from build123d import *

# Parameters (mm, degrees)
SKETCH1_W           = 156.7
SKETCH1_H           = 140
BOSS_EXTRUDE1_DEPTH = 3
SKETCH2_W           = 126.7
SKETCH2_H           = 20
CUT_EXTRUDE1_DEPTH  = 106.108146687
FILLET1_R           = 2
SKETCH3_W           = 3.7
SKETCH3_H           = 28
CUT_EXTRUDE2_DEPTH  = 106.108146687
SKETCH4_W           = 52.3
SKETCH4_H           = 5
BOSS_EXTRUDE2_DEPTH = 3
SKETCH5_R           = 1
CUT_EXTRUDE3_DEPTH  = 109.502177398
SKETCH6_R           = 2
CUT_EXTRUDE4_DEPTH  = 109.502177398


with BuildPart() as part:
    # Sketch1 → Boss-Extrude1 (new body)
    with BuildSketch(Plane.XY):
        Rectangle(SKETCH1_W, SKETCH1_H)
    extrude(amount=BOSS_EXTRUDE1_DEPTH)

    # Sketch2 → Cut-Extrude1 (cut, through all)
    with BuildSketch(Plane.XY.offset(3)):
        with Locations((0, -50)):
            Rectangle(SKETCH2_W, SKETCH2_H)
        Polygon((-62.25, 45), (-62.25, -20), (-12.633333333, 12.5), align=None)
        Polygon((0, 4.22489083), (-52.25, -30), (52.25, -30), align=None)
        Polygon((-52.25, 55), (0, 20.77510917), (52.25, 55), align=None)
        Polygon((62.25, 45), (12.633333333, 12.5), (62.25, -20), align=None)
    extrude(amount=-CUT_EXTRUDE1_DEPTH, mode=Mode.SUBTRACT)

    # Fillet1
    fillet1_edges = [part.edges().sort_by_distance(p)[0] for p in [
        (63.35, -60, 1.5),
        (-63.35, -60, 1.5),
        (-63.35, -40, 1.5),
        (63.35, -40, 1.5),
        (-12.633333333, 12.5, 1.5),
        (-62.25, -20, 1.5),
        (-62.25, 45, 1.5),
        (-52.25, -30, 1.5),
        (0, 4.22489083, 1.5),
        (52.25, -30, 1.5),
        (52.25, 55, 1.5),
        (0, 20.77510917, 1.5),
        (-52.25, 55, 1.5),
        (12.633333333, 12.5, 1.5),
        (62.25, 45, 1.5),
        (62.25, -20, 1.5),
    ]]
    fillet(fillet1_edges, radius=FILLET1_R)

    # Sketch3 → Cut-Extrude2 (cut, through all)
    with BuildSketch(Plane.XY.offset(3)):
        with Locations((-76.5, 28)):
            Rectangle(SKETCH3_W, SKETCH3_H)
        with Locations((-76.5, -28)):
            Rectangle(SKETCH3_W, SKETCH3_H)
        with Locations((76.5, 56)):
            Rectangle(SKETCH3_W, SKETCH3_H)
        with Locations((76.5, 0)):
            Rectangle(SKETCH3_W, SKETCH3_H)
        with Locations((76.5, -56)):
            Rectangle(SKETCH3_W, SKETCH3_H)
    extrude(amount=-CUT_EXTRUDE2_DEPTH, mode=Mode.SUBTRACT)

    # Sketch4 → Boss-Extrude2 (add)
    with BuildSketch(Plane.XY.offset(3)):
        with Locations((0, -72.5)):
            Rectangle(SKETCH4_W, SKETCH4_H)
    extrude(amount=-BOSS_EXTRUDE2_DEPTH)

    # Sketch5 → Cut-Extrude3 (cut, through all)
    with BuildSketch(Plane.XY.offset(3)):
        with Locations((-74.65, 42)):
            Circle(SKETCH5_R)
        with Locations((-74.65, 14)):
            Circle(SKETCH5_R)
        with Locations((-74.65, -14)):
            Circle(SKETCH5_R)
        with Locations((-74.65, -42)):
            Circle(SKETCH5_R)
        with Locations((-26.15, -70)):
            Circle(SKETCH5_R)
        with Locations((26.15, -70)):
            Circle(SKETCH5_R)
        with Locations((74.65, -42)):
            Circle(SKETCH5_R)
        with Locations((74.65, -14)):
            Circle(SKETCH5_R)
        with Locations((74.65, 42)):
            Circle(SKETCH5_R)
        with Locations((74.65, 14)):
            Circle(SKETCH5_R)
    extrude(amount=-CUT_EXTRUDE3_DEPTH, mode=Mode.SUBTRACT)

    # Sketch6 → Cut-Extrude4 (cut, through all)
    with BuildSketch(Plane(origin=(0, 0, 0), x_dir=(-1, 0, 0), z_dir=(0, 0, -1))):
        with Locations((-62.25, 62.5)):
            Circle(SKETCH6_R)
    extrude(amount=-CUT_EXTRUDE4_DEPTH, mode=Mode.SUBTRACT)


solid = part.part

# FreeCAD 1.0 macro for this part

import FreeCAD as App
import Part
import Sketcher
from FreeCAD import Vector


def edges_at(feature, points):
    """Names of the edges that pass closest to the given points."""
    edges = feature.Shape.Edges
    near = lambda p: min(range(len(edges)), key=lambda i: edges[i].distToShape(Part.Vertex(*p))[0])
    return sorted({f"Edge{near(p) + 1}" for p in points})

doc = App.newDocument("Part")
body = doc.addObject("PartDesign::Body", "Body")

sketch1 = body.newObject("Sketcher::SketchObject", "Sketch")
sketch1.AttachmentSupport = (doc.getObject("XY_Plane"), [""])
sketch1.MapMode = "FlatFace"
sketch1.addGeometry([
    Part.LineSegment(Vector(-78.35, 70, 0), Vector(-78.35, -70, 0)),
    Part.LineSegment(Vector(-78.35, -70, 0), Vector(78.35, -70, 0)),
    Part.LineSegment(Vector(78.35, -70, 0), Vector(78.35, 70, 0)),
    Part.LineSegment(Vector(78.35, 70, 0), Vector(-78.35, 70, 0)),
], False)
sketch1.addConstraint([
    Sketcher.Constraint("Coincident", 0, 2, 1, 1),
    Sketcher.Constraint("Coincident", 1, 2, 2, 1),
    Sketcher.Constraint("Coincident", 2, 2, 3, 1),
    Sketcher.Constraint("Coincident", 3, 2, 0, 1),
    Sketcher.Constraint("Vertical", 0),
    Sketcher.Constraint("Horizontal", 1),
    Sketcher.Constraint("Vertical", 2),
    Sketcher.Constraint("Horizontal", 3),
    Sketcher.Constraint("Symmetric", 0, 2, 2, 2, -1, 1),
    Sketcher.Constraint("DistanceY", 0, 2, 0, 1, 140.0),
    Sketcher.Constraint("DistanceX", 1, 1, 1, 2, 156.7),
])
pad1 = body.newObject("PartDesign::Pad", "Pad")
pad1.Profile = sketch1
pad1.Length = 3

sketch2 = body.newObject("Sketcher::SketchObject", "Sketch001")
sketch2.AttachmentSupport = (doc.getObject("XY_Plane"), [""])
sketch2.MapMode = "FlatFace"
sketch2.AttachmentOffset = App.Placement(Vector(0, 0, 3), App.Rotation())
sketch2.addGeometry([
    Part.LineSegment(Vector(-63.35, -40, 0), Vector(-63.35, -60, 0)),
    Part.LineSegment(Vector(-63.35, -60, 0), Vector(63.35, -60, 0)),
    Part.LineSegment(Vector(63.35, -60, 0), Vector(63.35, -40, 0)),
    Part.LineSegment(Vector(63.35, -40, 0), Vector(-63.35, -40, 0)),
    Part.LineSegment(Vector(-62.25, 45, 0), Vector(-62.25, -20, 0)),
    Part.LineSegment(Vector(-62.25, -20, 0), Vector(-12.633333, 12.5, 0)),
    Part.LineSegment(Vector(-12.633333, 12.5, 0), Vector(-62.25, 45, 0)),
    Part.LineSegment(Vector(0, 4.224891, 0), Vector(-52.25, -30, 0)),
    Part.LineSegment(Vector(-52.25, -30, 0), Vector(52.25, -30, 0)),
    Part.LineSegment(Vector(52.25, -30, 0), Vector(0, 4.224891, 0)),
    Part.LineSegment(Vector(-52.25, 55, 0), Vector(0, 20.775109, 0)),
    Part.LineSegment(Vector(0, 20.775109, 0), Vector(52.25, 55, 0)),
    Part.LineSegment(Vector(52.25, 55, 0), Vector(-52.25, 55, 0)),
    Part.LineSegment(Vector(62.25, 45, 0), Vector(12.633333, 12.5, 0)),
    Part.LineSegment(Vector(12.633333, 12.5, 0), Vector(62.25, -20, 0)),
    Part.LineSegment(Vector(62.25, -20, 0), Vector(62.25, 45, 0)),
], False)
sketch2.addConstraint([
    Sketcher.Constraint("Coincident", 0, 2, 1, 1),
    Sketcher.Constraint("Coincident", 1, 2, 2, 1),
    Sketcher.Constraint("Coincident", 2, 2, 3, 1),
    Sketcher.Constraint("Coincident", 3, 2, 0, 1),
    Sketcher.Constraint("Coincident", 4, 2, 5, 1),
    Sketcher.Constraint("Coincident", 5, 2, 6, 1),
    Sketcher.Constraint("Coincident", 6, 2, 4, 1),
    Sketcher.Constraint("Coincident", 7, 2, 8, 1),
    Sketcher.Constraint("Coincident", 8, 2, 9, 1),
    Sketcher.Constraint("Coincident", 9, 2, 7, 1),
    Sketcher.Constraint("Coincident", 10, 2, 11, 1),
    Sketcher.Constraint("Coincident", 11, 2, 12, 1),
    Sketcher.Constraint("Coincident", 12, 2, 10, 1),
    Sketcher.Constraint("Coincident", 13, 2, 14, 1),
    Sketcher.Constraint("Coincident", 14, 2, 15, 1),
    Sketcher.Constraint("Coincident", 15, 2, 13, 1),
    Sketcher.Constraint("Vertical", 0),
    Sketcher.Constraint("Horizontal", 1),
    Sketcher.Constraint("Vertical", 2),
    Sketcher.Constraint("Horizontal", 3),
    Sketcher.Constraint("Vertical", 4),
    Sketcher.Constraint("Horizontal", 8),
    Sketcher.Constraint("Horizontal", 12),
    Sketcher.Constraint("Vertical", 15),
    Sketcher.Constraint("Symmetric", 5, 2, 13, 2, -2),
    Sketcher.Constraint("Symmetric", 4, 2, 14, 2, -2),
    Sketcher.Constraint("PointOnObject", 9, 2, -2),
    Sketcher.Constraint("PointOnObject", 10, 2, -2),
    Sketcher.Constraint("Parallel", 5, 7),
    Sketcher.Constraint("Parallel", 6, 9),
    Sketcher.Constraint("Parallel", 9, 10),
    Sketcher.Constraint("Parallel", 7, 11),
    Sketcher.Constraint("Parallel", 11, 13),
    Sketcher.Constraint("Parallel", 10, 14),
    Sketcher.Constraint("Vertical", 8, 2, 11, 2),
    Sketcher.Constraint("DistanceY", 0, 2, 0, 1, 20.0),
    Sketcher.Constraint("DistanceY", 4, 2, 4, 1, 65.0),
    Sketcher.Constraint("DistanceX", 1, 1, 1, 2, 126.7),
    Sketcher.Constraint("DistanceX", 8, 1, 8, 2, 104.5),
    Sketcher.Constraint("DistanceY", 0, 2, -1, 1, 60.0),
    Sketcher.Constraint("DistanceY", 4, 2, -1, 1, 20.0),
    Sketcher.Constraint("DistanceY", 7, 2, -1, 1, 30.0),
    Sketcher.Constraint("DistanceY", -1, 1, 11, 2, 55.0),
    Sketcher.Constraint("DistanceX", 4, 2, 7, 2, 10.0),
    Sketcher.Constraint("DistanceX", 3, 2, 4, 2, 1.1),
    Sketcher.Constraint("DistanceY", -1, 1, 9, 2, 4.224891),
])
pocket1 = body.newObject("PartDesign::Pocket", "Pocket")
pocket1.Profile = sketch2
pocket1.Type = "ThroughAll"
doc.recompute()

fillet = body.newObject("PartDesign::Fillet", "Fillet")
fillet.Base = (pocket1, edges_at(pocket1, [
    (63.35, -60, 1.5),
    (-63.35, -60, 1.5),
    (-63.35, -40, 1.5),
    (63.35, -40, 1.5),
    (-12.633, 12.5, 1.5),
    (-62.25, -20, 1.5),
    (-62.25, 45, 1.5),
    (-52.25, -30, 1.5),
    (0, 4.225, 1.5),
    (52.25, -30, 1.5),
    (52.25, 55, 1.5),
    (0, 20.775, 1.5),
    (-52.25, 55, 1.5),
    (12.633, 12.5, 1.5),
    (62.25, 45, 1.5),
    (62.25, -20, 1.5),
]))
fillet.Radius = 2

sketch3 = body.newObject("Sketcher::SketchObject", "Sketch002")
sketch3.AttachmentSupport = (doc.getObject("XY_Plane"), [""])
sketch3.MapMode = "FlatFace"
sketch3.AttachmentOffset = App.Placement(Vector(0, 0, 3), App.Rotation())
sketch3.addGeometry([
    Part.LineSegment(Vector(-78.35, 42, 0), Vector(-78.35, 14, 0)),
    Part.LineSegment(Vector(-78.35, 14, 0), Vector(-74.65, 14, 0)),
    Part.LineSegment(Vector(-74.65, 14, 0), Vector(-74.65, 42, 0)),
    Part.LineSegment(Vector(-74.65, 42, 0), Vector(-78.35, 42, 0)),
    Part.LineSegment(Vector(-78.35, -14, 0), Vector(-78.35, -42, 0)),
    Part.LineSegment(Vector(-78.35, -42, 0), Vector(-74.65, -42, 0)),
    Part.LineSegment(Vector(-74.65, -42, 0), Vector(-74.65, -14, 0)),
    Part.LineSegment(Vector(-74.65, -14, 0), Vector(-78.35, -14, 0)),
    Part.LineSegment(Vector(74.65, 70, 0), Vector(74.65, 42, 0)),
    Part.LineSegment(Vector(74.65, 42, 0), Vector(78.35, 42, 0)),
    Part.LineSegment(Vector(78.35, 42, 0), Vector(78.35, 70, 0)),
    Part.LineSegment(Vector(78.35, 70, 0), Vector(74.65, 70, 0)),
    Part.LineSegment(Vector(74.65, 14, 0), Vector(74.65, -14, 0)),
    Part.LineSegment(Vector(74.65, -14, 0), Vector(78.35, -14, 0)),
    Part.LineSegment(Vector(78.35, -14, 0), Vector(78.35, 14, 0)),
    Part.LineSegment(Vector(78.35, 14, 0), Vector(74.65, 14, 0)),
    Part.LineSegment(Vector(74.65, -42, 0), Vector(74.65, -70, 0)),
    Part.LineSegment(Vector(74.65, -70, 0), Vector(78.35, -70, 0)),
    Part.LineSegment(Vector(78.35, -70, 0), Vector(78.35, -42, 0)),
    Part.LineSegment(Vector(78.35, -42, 0), Vector(74.65, -42, 0)),
], False)
sketch3.addConstraint([
    Sketcher.Constraint("Coincident", 0, 2, 1, 1),
    Sketcher.Constraint("Coincident", 1, 2, 2, 1),
    Sketcher.Constraint("Coincident", 2, 2, 3, 1),
    Sketcher.Constraint("Coincident", 3, 2, 0, 1),
    Sketcher.Constraint("Coincident", 4, 2, 5, 1),
    Sketcher.Constraint("Coincident", 5, 2, 6, 1),
    Sketcher.Constraint("Coincident", 6, 2, 7, 1),
    Sketcher.Constraint("Coincident", 7, 2, 4, 1),
    Sketcher.Constraint("Coincident", 8, 2, 9, 1),
    Sketcher.Constraint("Coincident", 9, 2, 10, 1),
    Sketcher.Constraint("Coincident", 10, 2, 11, 1),
    Sketcher.Constraint("Coincident", 11, 2, 8, 1),
    Sketcher.Constraint("Coincident", 12, 2, 13, 1),
    Sketcher.Constraint("Coincident", 13, 2, 14, 1),
    Sketcher.Constraint("Coincident", 14, 2, 15, 1),
    Sketcher.Constraint("Coincident", 15, 2, 12, 1),
    Sketcher.Constraint("Coincident", 16, 2, 17, 1),
    Sketcher.Constraint("Coincident", 17, 2, 18, 1),
    Sketcher.Constraint("Coincident", 18, 2, 19, 1),
    Sketcher.Constraint("Coincident", 19, 2, 16, 1),
    Sketcher.Constraint("Vertical", 0),
    Sketcher.Constraint("Horizontal", 1),
    Sketcher.Constraint("Vertical", 2),
    Sketcher.Constraint("Horizontal", 3),
    Sketcher.Constraint("Vertical", 4),
    Sketcher.Constraint("Horizontal", 5),
    Sketcher.Constraint("Vertical", 6),
    Sketcher.Constraint("Horizontal", 7),
    Sketcher.Constraint("Vertical", 8),
    Sketcher.Constraint("Horizontal", 9),
    Sketcher.Constraint("Vertical", 10),
    Sketcher.Constraint("Horizontal", 11),
    Sketcher.Constraint("Vertical", 12),
    Sketcher.Constraint("Horizontal", 13),
    Sketcher.Constraint("Vertical", 14),
    Sketcher.Constraint("Horizontal", 15),
    Sketcher.Constraint("Vertical", 16),
    Sketcher.Constraint("Horizontal", 17),
    Sketcher.Constraint("Vertical", 18),
    Sketcher.Constraint("Horizontal", 19),
    Sketcher.Constraint("Symmetric", 5, 2, 8, 2, -1, 1),
    Sketcher.Constraint("Symmetric", 1, 2, 12, 2, -1, 1),
    Sketcher.Constraint("Symmetric", 7, 2, 14, 2, -1, 1),
    Sketcher.Constraint("Symmetric", 3, 2, 18, 2, -1, 1),
    Sketcher.Constraint("Symmetric", 2, 2, 8, 2, -2),
    Sketcher.Constraint("Symmetric", 0, 2, 14, 2, -2),
    Sketcher.Constraint("Symmetric", 11, 2, 16, 2, -1),
    Sketcher.Constraint("Vertical", 10, 2, 13, 2),
    Sketcher.Constraint("Equal", 6, 8),
    Sketcher.Constraint("Equal", 10, 12),
    Sketcher.Constraint("DistanceY", 0, 2, 0, 1, 28.0),
    Sketcher.Constraint("DistanceX", 1, 1, 1, 2, 3.7),
    Sketcher.Constraint("DistanceX", 3, 2, 8, 2, 153.0),
])
pocket2 = body.newObject("PartDesign::Pocket", "Pocket001")
pocket2.Profile = sketch3
pocket2.Type = "ThroughAll"

sketch4 = body.newObject("Sketcher::SketchObject", "Sketch003")
sketch4.AttachmentSupport = (doc.getObject("XY_Plane"), [""])
sketch4.MapMode = "FlatFace"
sketch4.AttachmentOffset = App.Placement(Vector(0, 0, 3), App.Rotation())
sketch4.addGeometry([
    Part.LineSegment(Vector(-26.15, -70, 0), Vector(-26.15, -75, 0)),
    Part.LineSegment(Vector(-26.15, -75, 0), Vector(26.15, -75, 0)),
    Part.LineSegment(Vector(26.15, -75, 0), Vector(26.15, -70, 0)),
    Part.LineSegment(Vector(26.15, -70, 0), Vector(-26.15, -70, 0)),
], False)
sketch4.addConstraint([
    Sketcher.Constraint("Coincident", 0, 2, 1, 1),
    Sketcher.Constraint("Coincident", 1, 2, 2, 1),
    Sketcher.Constraint("Coincident", 2, 2, 3, 1),
    Sketcher.Constraint("Coincident", 3, 2, 0, 1),
    Sketcher.Constraint("Vertical", 0),
    Sketcher.Constraint("Horizontal", 1),
    Sketcher.Constraint("Vertical", 2),
    Sketcher.Constraint("Horizontal", 3),
    Sketcher.Constraint("DistanceY", 0, 2, 0, 1, 5.0),
    Sketcher.Constraint("DistanceX", 1, 1, 1, 2, 52.3),
    Sketcher.Constraint("DistanceY", 0, 2, -1, 1, 75.0),
    Sketcher.Constraint("DistanceX", 0, 2, -1, 1, 26.15),
])
pad2 = body.newObject("PartDesign::Pad", "Pad001")
pad2.Profile = sketch4
pad2.Length = 3
pad2.Reversed = True

sketch5 = body.newObject("Sketcher::SketchObject", "Sketch004")
sketch5.AttachmentSupport = (doc.getObject("XY_Plane"), [""])
sketch5.MapMode = "FlatFace"
sketch5.AttachmentOffset = App.Placement(Vector(0, 0, 3), App.Rotation())
sketch5.addGeometry([
    Part.Circle(Vector(-74.65, 42, 0), Vector(0, 0, 1), 1),
    Part.Circle(Vector(-74.65, 14, 0), Vector(0, 0, 1), 1),
    Part.Circle(Vector(-74.65, -14, 0), Vector(0, 0, 1), 1),
    Part.Circle(Vector(-74.65, -42, 0), Vector(0, 0, 1), 1),
    Part.Circle(Vector(-26.15, -70, 0), Vector(0, 0, 1), 1),
    Part.Circle(Vector(26.15, -70, 0), Vector(0, 0, 1), 1),
    Part.Circle(Vector(74.65, -42, 0), Vector(0, 0, 1), 1),
    Part.Circle(Vector(74.65, -14, 0), Vector(0, 0, 1), 1),
    Part.Circle(Vector(74.65, 42, 0), Vector(0, 0, 1), 1),
    Part.Circle(Vector(74.65, 14, 0), Vector(0, 0, 1), 1),
], False)
sketch5.addConstraint([
    Sketcher.Constraint("Equal", 0, 1),
    Sketcher.Constraint("Equal", 1, 2),
    Sketcher.Constraint("Equal", 2, 3),
    Sketcher.Constraint("Equal", 3, 4),
    Sketcher.Constraint("Equal", 4, 5),
    Sketcher.Constraint("Equal", 5, 6),
    Sketcher.Constraint("Equal", 6, 7),
    Sketcher.Constraint("Equal", 7, 8),
    Sketcher.Constraint("Equal", 8, 9),
    Sketcher.Constraint("Symmetric", 0, 3, 6, 3, -1, 1),
    Sketcher.Constraint("Symmetric", 1, 3, 7, 3, -1, 1),
    Sketcher.Constraint("Symmetric", 3, 3, 8, 3, -1, 1),
    Sketcher.Constraint("Symmetric", 2, 3, 9, 3, -1, 1),
    Sketcher.Constraint("Symmetric", 4, 3, 5, 3, -2),
    Sketcher.Constraint("Symmetric", 3, 3, 6, 3, -2),
    Sketcher.Constraint("Symmetric", 2, 3, 7, 3, -2),
    Sketcher.Constraint("Vertical", 0, 3, 1, 3),
    Sketcher.Constraint("Diameter", 0, 2.0),
    Sketcher.Constraint("DistanceY", -1, 1, 0, 3, 42.0),
    Sketcher.Constraint("DistanceY", -1, 1, 1, 3, 14.0),
    Sketcher.Constraint("DistanceY", 4, 3, -1, 1, 70.0),
    Sketcher.Constraint("DistanceX", 3, 3, 4, 3, 48.5),
    Sketcher.Constraint("DistanceX", 4, 3, 5, 3, 52.3),
])
pocket3 = body.newObject("PartDesign::Pocket", "Pocket002")
pocket3.Profile = sketch5
pocket3.Type = "ThroughAll"

sketch6 = body.newObject("Sketcher::SketchObject", "Sketch005")
sketch6.AttachmentSupport = (doc.getObject("XY_Plane"), [""])
sketch6.MapMode = "FlatFace"
sketch6.addGeometry(Part.Circle(Vector(62.25, 62.5, 0), Vector(0, 0, 1), 2), False)
sketch6.addConstraint([
    Sketcher.Constraint("Diameter", 0, 4.0),
    Sketcher.Constraint("DistanceY", -1, 1, 0, 3, 62.5),
    Sketcher.Constraint("DistanceX", -1, 1, 0, 3, 62.25),
])
pocket4 = body.newObject("PartDesign::Pocket", "Pocket003")
pocket4.Profile = sketch6
pocket4.Type = "ThroughAll"
pocket4.Reversed = True

doc.recompute()
